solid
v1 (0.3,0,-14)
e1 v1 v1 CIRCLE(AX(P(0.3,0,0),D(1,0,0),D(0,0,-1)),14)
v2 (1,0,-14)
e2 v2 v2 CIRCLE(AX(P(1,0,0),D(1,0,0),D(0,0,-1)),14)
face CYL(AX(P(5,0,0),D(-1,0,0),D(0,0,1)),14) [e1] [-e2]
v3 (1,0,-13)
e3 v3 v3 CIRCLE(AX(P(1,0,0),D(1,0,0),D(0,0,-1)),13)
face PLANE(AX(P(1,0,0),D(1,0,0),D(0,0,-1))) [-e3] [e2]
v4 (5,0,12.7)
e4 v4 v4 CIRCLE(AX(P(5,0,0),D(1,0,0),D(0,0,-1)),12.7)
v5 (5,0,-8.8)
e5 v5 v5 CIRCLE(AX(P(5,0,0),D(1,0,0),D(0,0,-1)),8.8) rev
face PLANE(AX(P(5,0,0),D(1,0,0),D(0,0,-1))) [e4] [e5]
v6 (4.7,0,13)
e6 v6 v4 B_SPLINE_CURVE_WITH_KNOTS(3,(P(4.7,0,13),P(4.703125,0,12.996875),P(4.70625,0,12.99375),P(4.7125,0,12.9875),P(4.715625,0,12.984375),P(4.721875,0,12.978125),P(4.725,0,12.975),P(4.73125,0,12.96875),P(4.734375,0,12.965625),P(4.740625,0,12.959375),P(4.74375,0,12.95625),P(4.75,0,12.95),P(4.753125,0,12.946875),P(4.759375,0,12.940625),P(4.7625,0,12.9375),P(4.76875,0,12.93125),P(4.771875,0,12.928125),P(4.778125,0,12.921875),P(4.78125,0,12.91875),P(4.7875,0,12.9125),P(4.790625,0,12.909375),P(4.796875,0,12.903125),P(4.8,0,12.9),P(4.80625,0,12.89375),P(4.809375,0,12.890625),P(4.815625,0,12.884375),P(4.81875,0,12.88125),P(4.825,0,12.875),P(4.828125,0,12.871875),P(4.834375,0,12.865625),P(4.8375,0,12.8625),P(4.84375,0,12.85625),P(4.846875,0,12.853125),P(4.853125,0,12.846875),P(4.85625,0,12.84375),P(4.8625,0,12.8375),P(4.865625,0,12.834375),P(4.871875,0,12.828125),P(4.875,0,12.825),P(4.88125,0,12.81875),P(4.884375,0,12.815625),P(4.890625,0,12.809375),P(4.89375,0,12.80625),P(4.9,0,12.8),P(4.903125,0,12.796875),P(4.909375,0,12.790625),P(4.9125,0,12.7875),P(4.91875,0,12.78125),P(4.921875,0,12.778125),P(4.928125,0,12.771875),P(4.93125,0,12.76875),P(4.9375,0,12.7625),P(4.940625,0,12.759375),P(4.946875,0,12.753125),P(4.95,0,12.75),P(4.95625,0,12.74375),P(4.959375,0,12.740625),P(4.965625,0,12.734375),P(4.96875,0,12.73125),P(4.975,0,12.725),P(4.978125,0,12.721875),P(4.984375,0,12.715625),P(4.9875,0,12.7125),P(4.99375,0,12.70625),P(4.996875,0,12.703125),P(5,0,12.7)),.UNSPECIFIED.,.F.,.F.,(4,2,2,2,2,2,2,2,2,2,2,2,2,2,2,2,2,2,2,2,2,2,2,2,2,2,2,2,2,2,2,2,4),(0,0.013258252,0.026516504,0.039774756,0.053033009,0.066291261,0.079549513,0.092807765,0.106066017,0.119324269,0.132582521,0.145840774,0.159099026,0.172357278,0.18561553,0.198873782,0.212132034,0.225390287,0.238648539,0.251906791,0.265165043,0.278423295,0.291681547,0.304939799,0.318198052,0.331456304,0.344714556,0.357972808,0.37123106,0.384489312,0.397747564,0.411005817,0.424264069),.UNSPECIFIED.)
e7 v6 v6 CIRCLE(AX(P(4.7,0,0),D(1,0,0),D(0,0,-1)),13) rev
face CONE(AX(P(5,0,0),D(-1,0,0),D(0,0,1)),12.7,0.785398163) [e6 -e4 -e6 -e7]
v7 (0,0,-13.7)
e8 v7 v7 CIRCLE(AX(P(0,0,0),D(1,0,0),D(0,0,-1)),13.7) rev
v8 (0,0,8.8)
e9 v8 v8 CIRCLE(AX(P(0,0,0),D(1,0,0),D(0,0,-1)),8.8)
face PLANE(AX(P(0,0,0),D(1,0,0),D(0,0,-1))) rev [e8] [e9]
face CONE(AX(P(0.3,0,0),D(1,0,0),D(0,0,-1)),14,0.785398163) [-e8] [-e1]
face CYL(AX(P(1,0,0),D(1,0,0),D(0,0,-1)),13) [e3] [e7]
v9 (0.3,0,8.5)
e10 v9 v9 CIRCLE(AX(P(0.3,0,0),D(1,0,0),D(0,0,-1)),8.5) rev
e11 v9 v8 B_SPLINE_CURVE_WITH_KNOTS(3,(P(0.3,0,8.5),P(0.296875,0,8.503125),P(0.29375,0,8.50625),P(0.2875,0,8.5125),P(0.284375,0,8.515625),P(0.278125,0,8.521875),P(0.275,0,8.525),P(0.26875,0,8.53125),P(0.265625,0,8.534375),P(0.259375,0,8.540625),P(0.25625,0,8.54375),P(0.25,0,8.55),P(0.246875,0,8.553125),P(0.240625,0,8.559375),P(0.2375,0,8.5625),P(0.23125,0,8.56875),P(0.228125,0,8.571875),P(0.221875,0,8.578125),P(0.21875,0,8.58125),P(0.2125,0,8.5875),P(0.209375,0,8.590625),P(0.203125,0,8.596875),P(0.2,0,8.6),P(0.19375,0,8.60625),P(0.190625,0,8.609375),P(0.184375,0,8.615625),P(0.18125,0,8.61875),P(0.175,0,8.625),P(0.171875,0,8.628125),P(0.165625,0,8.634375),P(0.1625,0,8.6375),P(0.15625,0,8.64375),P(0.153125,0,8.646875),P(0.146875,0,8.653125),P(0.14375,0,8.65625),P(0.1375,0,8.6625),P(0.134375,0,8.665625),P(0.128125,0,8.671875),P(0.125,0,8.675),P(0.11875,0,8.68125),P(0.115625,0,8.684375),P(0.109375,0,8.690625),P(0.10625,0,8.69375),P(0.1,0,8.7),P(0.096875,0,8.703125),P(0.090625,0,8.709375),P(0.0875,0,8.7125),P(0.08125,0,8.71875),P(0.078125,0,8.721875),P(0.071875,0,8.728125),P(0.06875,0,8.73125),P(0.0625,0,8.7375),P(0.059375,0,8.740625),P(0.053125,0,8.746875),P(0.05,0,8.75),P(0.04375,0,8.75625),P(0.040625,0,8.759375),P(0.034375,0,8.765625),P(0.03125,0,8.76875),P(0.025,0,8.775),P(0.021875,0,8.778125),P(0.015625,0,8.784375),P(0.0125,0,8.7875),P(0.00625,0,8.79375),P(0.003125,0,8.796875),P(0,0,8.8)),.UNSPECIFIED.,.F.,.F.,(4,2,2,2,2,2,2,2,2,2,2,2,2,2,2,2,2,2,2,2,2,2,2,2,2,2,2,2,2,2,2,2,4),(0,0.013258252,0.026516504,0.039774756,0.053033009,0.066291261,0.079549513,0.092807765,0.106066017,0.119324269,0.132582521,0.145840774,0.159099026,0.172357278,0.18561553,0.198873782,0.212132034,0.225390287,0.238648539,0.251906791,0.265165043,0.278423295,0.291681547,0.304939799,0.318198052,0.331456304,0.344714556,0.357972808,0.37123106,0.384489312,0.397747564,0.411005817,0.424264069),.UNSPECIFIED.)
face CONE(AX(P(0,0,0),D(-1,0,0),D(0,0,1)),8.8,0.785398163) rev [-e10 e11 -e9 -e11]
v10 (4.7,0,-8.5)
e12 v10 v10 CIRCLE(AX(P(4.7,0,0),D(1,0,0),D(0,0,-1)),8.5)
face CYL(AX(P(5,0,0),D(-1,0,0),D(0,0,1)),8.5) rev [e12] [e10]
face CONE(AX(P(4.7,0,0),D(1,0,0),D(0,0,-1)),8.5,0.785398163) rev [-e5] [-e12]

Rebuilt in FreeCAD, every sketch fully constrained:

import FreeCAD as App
import Part
import Sketcher

V = App.Vector
Q = App.Units.Quantity


def edges_at(feature, points):
    """Names of the edges that pass closest to the given points."""
    edges = feature.Shape.Edges
    near = lambda p: min(range(len(edges)), key=lambda i: edges[i].distToShape(Part.Vertex(*p))[0])
    return sorted({f"Edge{near(p) + 1}" for p in points})

doc = App.newDocument("Part")
body = doc.addObject("PartDesign::Body", "Body")

sketch1 = body.newObject("Sketcher::SketchObject", "Sketch")
sketch1.AttachmentSupport = (doc.getObject("YZ_Plane"), [""])
sketch1.MapMode = "FlatFace"
sketch1.addGeometry([
    Part.Circle(V(0, 0, 0), V(0, 0, 1), 14),
    Part.Circle(V(0, 0, 0), V(0, 0, 1), 8.5),
], False)
sketch1.addConstraint([
    Sketcher.Constraint("Coincident", 0, 3, -1, 1),
    Sketcher.Constraint("Coincident", 1, 3, -1, 1),
    Sketcher.Constraint("Diameter", 0, Q("28 mm")),
    Sketcher.Constraint("Diameter", 1, Q("17 mm")),
])
pad1 = body.newObject("PartDesign::Pad", "Pad")
pad1.Profile = sketch1
pad1.Length = 5

sketch2 = body.newObject("Sketcher::SketchObject", "Sketch001")
sketch2.AttachmentSupport = (doc.getObject("YZ_Plane"), [""])
sketch2.MapMode = "FlatFace"
sketch2.AttachmentOffset = App.Placement(V(0, 0, 5), App.Rotation())
sketch2.addGeometry([
    Part.Circle(V(0, 0, 0), V(0, 0, 1), 16.127191),
    Part.Circle(V(0, 0, 0), V(0, 0, 1), 13),
], False)
sketch2.addConstraint([
    Sketcher.Constraint("Coincident", 0, 3, -1, 1),
    Sketcher.Constraint("Coincident", 1, 3, -1, 1),
    Sketcher.Constraint("Diameter", 1, Q("26 mm")),
    Sketcher.Constraint("Diameter", 0, Q("32.254381 mm")),
])
pocket1 = body.newObject("PartDesign::Pocket", "Pocket")
pocket1.Profile = sketch2
pocket1.Length = 4
doc.recompute()

chamfer = body.newObject("PartDesign::Chamfer", "Chamfer")
chamfer.Base = (pocket1, edges_at(pocket1, [
    (5, 0, 13),
    (0, 0, 14),
    (0, 0, 8.5),
    (5, 0, 8.5),
]))
chamfer.Size = 0.3

doc.recompute()
